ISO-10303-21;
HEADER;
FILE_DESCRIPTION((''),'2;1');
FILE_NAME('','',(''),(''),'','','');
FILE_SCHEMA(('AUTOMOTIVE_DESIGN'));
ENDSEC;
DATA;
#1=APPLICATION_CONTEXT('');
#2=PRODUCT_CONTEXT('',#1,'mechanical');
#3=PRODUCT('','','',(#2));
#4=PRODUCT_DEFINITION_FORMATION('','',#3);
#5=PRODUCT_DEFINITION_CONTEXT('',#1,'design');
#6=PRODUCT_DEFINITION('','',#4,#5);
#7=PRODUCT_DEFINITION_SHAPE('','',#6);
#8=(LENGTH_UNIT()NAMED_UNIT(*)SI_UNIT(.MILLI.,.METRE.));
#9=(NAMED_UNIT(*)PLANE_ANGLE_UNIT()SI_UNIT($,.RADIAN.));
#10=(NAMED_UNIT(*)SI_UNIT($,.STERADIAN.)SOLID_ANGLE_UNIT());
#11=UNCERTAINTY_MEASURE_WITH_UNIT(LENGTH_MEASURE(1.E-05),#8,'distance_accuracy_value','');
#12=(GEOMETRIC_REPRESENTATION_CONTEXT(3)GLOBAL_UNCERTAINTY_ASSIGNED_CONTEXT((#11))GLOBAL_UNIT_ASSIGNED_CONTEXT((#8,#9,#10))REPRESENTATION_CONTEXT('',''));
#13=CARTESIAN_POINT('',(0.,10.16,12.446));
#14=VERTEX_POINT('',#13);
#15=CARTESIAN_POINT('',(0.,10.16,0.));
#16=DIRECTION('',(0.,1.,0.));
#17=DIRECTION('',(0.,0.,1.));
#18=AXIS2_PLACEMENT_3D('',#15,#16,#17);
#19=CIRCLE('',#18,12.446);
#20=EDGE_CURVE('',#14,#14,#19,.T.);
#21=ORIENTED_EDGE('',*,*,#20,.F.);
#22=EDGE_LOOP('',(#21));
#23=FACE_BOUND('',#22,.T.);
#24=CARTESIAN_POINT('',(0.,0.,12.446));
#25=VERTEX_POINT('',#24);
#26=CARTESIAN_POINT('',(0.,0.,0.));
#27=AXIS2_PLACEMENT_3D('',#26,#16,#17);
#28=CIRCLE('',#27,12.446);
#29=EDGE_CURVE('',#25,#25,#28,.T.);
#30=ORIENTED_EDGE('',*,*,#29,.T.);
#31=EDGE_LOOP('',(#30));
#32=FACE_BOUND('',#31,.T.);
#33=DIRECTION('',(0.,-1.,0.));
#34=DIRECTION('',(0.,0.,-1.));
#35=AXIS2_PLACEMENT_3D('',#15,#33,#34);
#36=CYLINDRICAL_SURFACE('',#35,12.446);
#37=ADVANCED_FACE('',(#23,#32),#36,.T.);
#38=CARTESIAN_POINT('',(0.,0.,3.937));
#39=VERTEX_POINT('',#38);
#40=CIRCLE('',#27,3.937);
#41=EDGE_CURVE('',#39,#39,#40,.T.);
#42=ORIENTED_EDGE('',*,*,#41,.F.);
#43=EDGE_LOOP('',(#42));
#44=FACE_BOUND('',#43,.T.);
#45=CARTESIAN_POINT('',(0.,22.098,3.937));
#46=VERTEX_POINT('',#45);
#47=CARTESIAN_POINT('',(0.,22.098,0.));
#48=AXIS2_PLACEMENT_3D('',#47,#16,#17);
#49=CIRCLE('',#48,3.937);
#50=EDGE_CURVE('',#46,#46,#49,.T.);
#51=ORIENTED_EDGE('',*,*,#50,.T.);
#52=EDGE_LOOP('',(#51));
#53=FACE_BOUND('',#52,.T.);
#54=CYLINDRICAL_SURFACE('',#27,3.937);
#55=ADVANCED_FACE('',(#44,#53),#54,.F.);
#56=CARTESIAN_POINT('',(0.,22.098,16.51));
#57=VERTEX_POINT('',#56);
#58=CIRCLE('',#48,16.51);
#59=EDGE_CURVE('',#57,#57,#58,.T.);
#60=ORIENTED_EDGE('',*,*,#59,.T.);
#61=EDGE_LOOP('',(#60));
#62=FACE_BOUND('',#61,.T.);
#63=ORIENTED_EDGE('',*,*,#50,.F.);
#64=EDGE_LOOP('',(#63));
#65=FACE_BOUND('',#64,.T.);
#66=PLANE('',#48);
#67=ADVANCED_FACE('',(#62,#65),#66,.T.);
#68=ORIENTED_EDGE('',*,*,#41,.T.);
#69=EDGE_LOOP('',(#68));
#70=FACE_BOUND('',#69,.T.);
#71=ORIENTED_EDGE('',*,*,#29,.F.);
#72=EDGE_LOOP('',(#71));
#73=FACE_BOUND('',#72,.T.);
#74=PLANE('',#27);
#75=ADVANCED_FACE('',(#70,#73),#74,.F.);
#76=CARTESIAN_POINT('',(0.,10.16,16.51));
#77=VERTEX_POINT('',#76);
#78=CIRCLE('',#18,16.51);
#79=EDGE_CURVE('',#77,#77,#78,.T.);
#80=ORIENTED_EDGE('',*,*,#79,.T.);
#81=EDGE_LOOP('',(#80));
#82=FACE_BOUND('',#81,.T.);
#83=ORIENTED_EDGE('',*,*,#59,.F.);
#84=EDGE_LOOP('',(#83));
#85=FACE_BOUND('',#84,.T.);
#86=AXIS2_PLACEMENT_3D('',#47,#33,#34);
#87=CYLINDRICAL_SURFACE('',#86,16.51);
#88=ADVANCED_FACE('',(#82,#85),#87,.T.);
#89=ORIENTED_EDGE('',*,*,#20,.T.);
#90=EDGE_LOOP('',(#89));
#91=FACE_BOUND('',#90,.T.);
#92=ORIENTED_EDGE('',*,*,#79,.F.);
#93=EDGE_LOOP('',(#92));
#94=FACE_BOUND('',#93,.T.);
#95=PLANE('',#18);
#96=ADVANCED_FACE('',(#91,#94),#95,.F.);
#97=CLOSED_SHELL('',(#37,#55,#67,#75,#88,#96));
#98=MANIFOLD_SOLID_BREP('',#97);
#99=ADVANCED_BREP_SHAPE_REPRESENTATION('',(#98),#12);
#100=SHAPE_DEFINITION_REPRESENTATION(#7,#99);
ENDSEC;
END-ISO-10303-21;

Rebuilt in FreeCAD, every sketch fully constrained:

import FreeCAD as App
import Part
import Sketcher
from FreeCAD import Vector
Q = App.Units.Quantity

doc = App.newDocument("Part")
body = doc.addObject("PartDesign::Body", "Body")

sketch1 = body.newObject("Sketcher::SketchObject", "Sketch")
sketch1.AttachmentSupport = (doc.getObject("XZ_Plane"), [""])
sketch1.MapMode = "FlatFace"
sketch1.addGeometry(Part.Circle(Vector(0, 0, 0), Vector(0, 0, 1), 12), False)
sketch1.addConstraint([
    Sketcher.Constraint("Coincident", 0, 3, -1, 1),
    Sketcher.Constraint("Diameter", 0, Q("0.98 in")),
])
pad1 = body.newObject("PartDesign::Pad", "Pad")
pad1.Profile = sketch1
pad1.Length = Q("0.4 in")
pad1.Reversed = True

sketch2 = body.newObject("Sketcher::SketchObject", "Sketch001")
sketch2.AttachmentSupport = (doc.getObject("XZ_Plane"), [""])
sketch2.MapMode = "FlatFace"
sketch2.AttachmentOffset = App.Placement(Vector(0, 0, -0.4 * 25.4), App.Rotation())
sketch2.addGeometry(Part.Circle(Vector(0, 0, 0), Vector(0, 0, 1), 17), False)
sketch2.addConstraint([
    Sketcher.Constraint("Coincident", 0, 3, -1, 1),
    Sketcher.Constraint("Diameter", 0, Q("1.3 in")),
])
pad2 = body.newObject("PartDesign::Pad", "Pad001")
pad2.Profile = sketch2
pad2.Length = Q("0.47 in")
pad2.Reversed = True

sketch3 = body.newObject("Sketcher::SketchObject", "Sketch002")
sketch3.AttachmentSupport = (doc.getObject("XZ_Plane"), [""])
sketch3.MapMode = "FlatFace"
sketch3.AttachmentOffset = App.Placement(Vector(0, 0, -0.87 * 25.4), App.Rotation())
sketch3.addGeometry(Part.Circle(Vector(0, 0, 0), Vector(0, 0, 1), 3.9), False)
sketch3.addConstraint([
    Sketcher.Constraint("Coincident", 0, 3, -1, 1),
    Sketcher.Constraint("Diameter", 0, Q("0.31 in")),
])
pocket1 = body.newObject("PartDesign::Pocket", "Pocket")
pocket1.Profile = sketch3
pocket1.Type = "ThroughAll"
pocket1.Reversed = True

doc.recompute()
